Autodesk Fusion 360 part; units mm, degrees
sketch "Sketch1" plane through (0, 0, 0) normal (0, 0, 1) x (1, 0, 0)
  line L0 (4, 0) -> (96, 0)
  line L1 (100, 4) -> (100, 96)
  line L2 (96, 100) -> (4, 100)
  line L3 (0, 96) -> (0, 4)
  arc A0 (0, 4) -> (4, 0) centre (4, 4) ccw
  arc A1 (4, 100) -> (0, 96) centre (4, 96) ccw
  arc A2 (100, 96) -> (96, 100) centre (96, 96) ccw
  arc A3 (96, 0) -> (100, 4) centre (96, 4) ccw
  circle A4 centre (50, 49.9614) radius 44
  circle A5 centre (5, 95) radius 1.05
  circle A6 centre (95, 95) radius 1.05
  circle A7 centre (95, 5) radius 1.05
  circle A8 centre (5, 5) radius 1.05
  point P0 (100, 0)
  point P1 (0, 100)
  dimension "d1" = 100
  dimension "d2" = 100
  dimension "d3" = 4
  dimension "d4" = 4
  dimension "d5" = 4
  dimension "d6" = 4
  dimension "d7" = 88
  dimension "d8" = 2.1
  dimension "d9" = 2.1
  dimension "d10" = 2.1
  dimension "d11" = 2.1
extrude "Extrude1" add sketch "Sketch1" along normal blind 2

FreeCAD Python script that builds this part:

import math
import FreeCAD as App
import Part
import Sketcher
Q = App.Units.Quantity

doc = App.newDocument("Part")
params = doc.addObject("Spreadsheet::Sheet", "Params")
for row, (alias, value) in enumerate([
    ("sketch1_diameter", "88 mm"),
    ("sketch1_radius", "4 mm"),
    ("sketch1_diameter2", "2.1 mm"),
    ("pad1_length", "2 mm"),
], start=1):
    params.set(f"A{row}", alias)
    params.set(f"B{row}", "=" + value)
    params.setAlias(f"B{row}", alias)

body = doc.addObject("PartDesign::Body", "Body")

# Sketch on XY plane
sketch1 = body.newObject("Sketcher::SketchObject", "Sketch")
sketch1.AttachmentSupport = (doc.getObject("XY_Plane"), [""])
sketch1.MapMode = "FlatFace"
sketch1.addGeometry(Part.ArcOfCircle(Part.Circle(App.Vector(4, 4, 0), App.Vector(0, 0, 1), 4), math.radians(180), math.radians(270)), False)
sketch1.addGeometry(Part.LineSegment(App.Vector(4, 0, 0), App.Vector(96, 0, 0)), False)
sketch1.addGeometry(Part.ArcOfCircle(Part.Circle(App.Vector(96, 4, 0), App.Vector(0, 0, 1), 4), math.radians(-90), math.radians(0)), False)
sketch1.addGeometry(Part.LineSegment(App.Vector(100, 4, 0), App.Vector(100, 96, 0)), False)
sketch1.addGeometry(Part.ArcOfCircle(Part.Circle(App.Vector(96, 96, 0), App.Vector(0, 0, 1), 4), math.radians(0), math.radians(90)), False)
sketch1.addGeometry(Part.LineSegment(App.Vector(96, 100, 0), App.Vector(4, 100, 0)), False)
sketch1.addGeometry(Part.ArcOfCircle(Part.Circle(App.Vector(4, 96, 0), App.Vector(0, 0, 1), 4), math.radians(90), math.radians(180)), False)
sketch1.addGeometry(Part.LineSegment(App.Vector(0, 96, 0), App.Vector(0, 4, 0)), False)
sketch1.addGeometry(Part.Circle(App.Vector(5, 5, 0), App.Vector(0, 0, 1), 1.1), False)
sketch1.addGeometry(Part.Circle(App.Vector(95, 5, 0), App.Vector(0, 0, 1), 1.1), False)
sketch1.addGeometry(Part.Circle(App.Vector(50, 50, 0), App.Vector(0, 0, 1), 44), False)
sketch1.addGeometry(Part.Circle(App.Vector(5, 95, 0), App.Vector(0, 0, 1), 1.1), False)
sketch1.addGeometry(Part.Circle(App.Vector(95, 95, 0), App.Vector(0, 0, 1), 1.1), False)
sketch1.addConstraint(Sketcher.Constraint("Tangent", 0, 2, 1, 1))
sketch1.addConstraint(Sketcher.Constraint("Tangent", 1, 2, 2, 1))
sketch1.addConstraint(Sketcher.Constraint("Tangent", 2, 2, 3, 1))
sketch1.addConstraint(Sketcher.Constraint("Tangent", 3, 2, 4, 1))
sketch1.addConstraint(Sketcher.Constraint("Tangent", 4, 2, 5, 1))
sketch1.addConstraint(Sketcher.Constraint("Tangent", 5, 2, 6, 1))
sketch1.addConstraint(Sketcher.Constraint("Tangent", 6, 2, 7, 1))
sketch1.addConstraint(Sketcher.Constraint("Tangent", 7, 2, 0, 1))
sketch1.addConstraint(Sketcher.Constraint("Horizontal", 1))
sketch1.addConstraint(Sketcher.Constraint("Vertical", 3))
sketch1.addConstraint(Sketcher.Constraint("Horizontal", 5))
sketch1.addConstraint(Sketcher.Constraint("Vertical", 7))
sketch1.addConstraint(Sketcher.Constraint("Equal", 0, 2))
sketch1.addConstraint(Sketcher.Constraint("Equal", 2, 4))
sketch1.addConstraint(Sketcher.Constraint("Equal", 4, 6))
sketch1.addConstraint(Sketcher.Constraint("Equal", 8, 9))
sketch1.addConstraint(Sketcher.Constraint("Equal", 9, 11))
sketch1.addConstraint(Sketcher.Constraint("Equal", 11, 12))
sketch1.addConstraint(Sketcher.Constraint("PointOnObject", 0, 2, -1))
sketch1.addConstraint(Sketcher.Constraint("PointOnObject", 6, 2, -2))
sketch1.addConstraint(Sketcher.Constraint("Horizontal", 8, 3, 9, 3))
sketch1.addConstraint(Sketcher.Constraint("Horizontal", 11, 3, 12, 3))
sketch1.addConstraint(Sketcher.Constraint("Vertical", 8, 3, 11, 3))
sketch1.addConstraint(Sketcher.Constraint("Vertical", 9, 3, 12, 3))
sketch1.addConstraint(Sketcher.Constraint("Equal", 5, 3))
sketch1.addConstraint(Sketcher.Constraint("Diameter", 10, Q("88 mm")))
sketch1.addConstraint(Sketcher.Constraint("Radius", 0, Q("4 mm")))
sketch1.addConstraint(Sketcher.Constraint("Diameter", 8, Q("2.1 mm")))
sketch1.addConstraint(Sketcher.Constraint("DistanceX", -1, 1, 2, 2, Q("100 mm")))
sketch1.addConstraint(Sketcher.Constraint("DistanceX", -1, 1, 8, 3, Q("5 mm")))
sketch1.addConstraint(Sketcher.Constraint("DistanceY", -1, 1, 8, 3, Q("5 mm")))
sketch1.addConstraint(Sketcher.Constraint("DistanceX", -1, 1, 9, 3, Q("95 mm")))
sketch1.addConstraint(Sketcher.Constraint("DistanceX", -1, 1, 10, 3, Q("50 mm")))
sketch1.addConstraint(Sketcher.Constraint("DistanceY", -1, 1, 11, 3, Q("95 mm")))
sketch1.addConstraint(Sketcher.Constraint("DistanceY", -1, 1, 10, 3, Q("49.9614 mm")))
sketch1.setExpression("Constraints[25]", "Params.sketch1_diameter")
sketch1.setExpression("Constraints[26]", "Params.sketch1_radius")
sketch1.setExpression("Constraints[27]", "Params.sketch1_diameter2")
pad1 = body.newObject("PartDesign::Pad", "Pad")
pad1.Profile = sketch1
pad1.setExpression("Length", "Params.pad1_length")

doc.recompute()
